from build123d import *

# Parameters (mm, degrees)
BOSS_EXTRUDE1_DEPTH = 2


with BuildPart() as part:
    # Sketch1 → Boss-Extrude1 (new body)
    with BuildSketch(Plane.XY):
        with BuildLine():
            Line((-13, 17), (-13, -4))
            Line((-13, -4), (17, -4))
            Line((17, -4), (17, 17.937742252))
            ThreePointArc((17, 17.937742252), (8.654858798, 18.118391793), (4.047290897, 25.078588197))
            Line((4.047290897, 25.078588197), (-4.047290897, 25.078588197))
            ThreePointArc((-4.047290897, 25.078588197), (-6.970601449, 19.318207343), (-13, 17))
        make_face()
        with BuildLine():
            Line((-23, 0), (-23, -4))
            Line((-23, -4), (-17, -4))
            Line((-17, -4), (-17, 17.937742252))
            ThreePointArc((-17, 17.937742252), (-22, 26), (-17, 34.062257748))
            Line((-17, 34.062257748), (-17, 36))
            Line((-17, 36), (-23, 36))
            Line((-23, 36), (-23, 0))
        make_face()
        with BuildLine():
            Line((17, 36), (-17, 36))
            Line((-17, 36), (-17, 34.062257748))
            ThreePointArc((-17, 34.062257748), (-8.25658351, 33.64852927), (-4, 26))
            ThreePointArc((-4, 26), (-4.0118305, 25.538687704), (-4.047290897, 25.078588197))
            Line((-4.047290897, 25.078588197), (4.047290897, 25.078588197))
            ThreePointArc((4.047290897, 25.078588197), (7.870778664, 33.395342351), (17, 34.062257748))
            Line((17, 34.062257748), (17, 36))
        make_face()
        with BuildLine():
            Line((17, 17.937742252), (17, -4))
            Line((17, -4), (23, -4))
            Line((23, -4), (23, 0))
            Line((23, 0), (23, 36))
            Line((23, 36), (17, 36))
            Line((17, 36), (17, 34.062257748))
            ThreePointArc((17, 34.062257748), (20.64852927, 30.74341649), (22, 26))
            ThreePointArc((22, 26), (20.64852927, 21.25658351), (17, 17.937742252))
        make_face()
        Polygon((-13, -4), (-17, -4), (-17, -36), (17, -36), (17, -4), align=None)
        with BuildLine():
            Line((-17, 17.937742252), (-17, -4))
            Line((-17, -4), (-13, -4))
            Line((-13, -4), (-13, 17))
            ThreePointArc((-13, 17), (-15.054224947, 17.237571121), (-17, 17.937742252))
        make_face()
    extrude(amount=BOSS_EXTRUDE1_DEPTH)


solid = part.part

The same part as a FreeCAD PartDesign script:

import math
import FreeCAD as App
import Part
import Sketcher
from FreeCAD import Vector
Q = App.Units.Quantity

doc = App.newDocument("Part")
params = doc.addObject("Spreadsheet::Sheet", "Params")
for row, (alias, value) in enumerate([
    ("sketch1_radius", "9 mm"),
    ("sketch1_width", "6 mm"),
    ("sketch1_width2", "34 mm"),
    ("sketch1_height", "32 mm"),
    ("sketch1_height2", "40 mm"),
    ("pad1_length", "2 mm"),
], start=1):
    params.set(f"A{row}", alias)
    params.set(f"B{row}", "=" + value)
    params.setAlias(f"B{row}", alias)

body = doc.addObject("PartDesign::Body", "Body")

# Sketch on XY plane
sketch1 = body.newObject("Sketcher::SketchObject", "Sketch")
sketch1.AttachmentSupport = (doc.getObject("XY_Plane"), [""])
sketch1.MapMode = "FlatFace"
sketch1.addGeometry([
    Part.LineSegment(Vector(-23, -4, 0), Vector(-17, -4, 0)),  # 0
    Part.LineSegment(Vector(-17, -4, 0), Vector(-17, -36, 0)),  # 1
    Part.LineSegment(Vector(-17, -36, 0), Vector(17, -36, 0)),  # 2
    Part.LineSegment(Vector(17, -36, 0), Vector(17, -4, 0)),  # 3
    Part.LineSegment(Vector(17, -4, 0), Vector(23, -4, 0)),  # 4
    Part.LineSegment(Vector(23, -4, 0), Vector(23, 36, 0)),  # 5
    Part.LineSegment(Vector(23, 36, 0), Vector(-23, 36, 0)),  # 6
    Part.LineSegment(Vector(-23, 36, 0), Vector(-23, -4, 0)),  # 7
    Part.ArcOfCircle(Part.Circle(Vector(-13, 26, 0), Vector(0, 0, 1), 9), math.radians(-90), math.radians(-6)),  # 8
    Part.ArcOfCircle(Part.Circle(Vector(-13, 26, 0), Vector(0, 0, 1), 9), math.radians(-116), math.radians(-90)),  # 9
    Part.ArcOfCircle(Part.Circle(Vector(-13, 26, 0), Vector(0, 0, 1), 9), math.radians(116), math.radians(244)),  # 10
    Part.ArcOfCircle(Part.Circle(Vector(-13, 26, 0), Vector(0, 0, 1), 9), math.radians(0), math.radians(116)),  # 11
    Part.ArcOfCircle(Part.Circle(Vector(-13, 26, 0), Vector(0, 0, 1), 9), math.radians(-5.88), math.radians(0)),  # 12
    Part.ArcOfCircle(Part.Circle(Vector(13, 26, 0), Vector(0, 0, 1), 9), math.radians(-174), math.radians(-64)),  # 13
    Part.ArcOfCircle(Part.Circle(Vector(13, 26, 0), Vector(0, 0, 1), 9), math.radians(64), math.radians(186)),  # 14
    Part.ArcOfCircle(Part.Circle(Vector(13, 26, 0), Vector(0, 0, 1), 9), math.radians(0), math.radians(64)),  # 15
    Part.ArcOfCircle(Part.Circle(Vector(13, 26, 0), Vector(0, 0, 1), 9), math.radians(-64), math.radians(0)),  # 16
], False)
sketch1.addConstraint([
    Sketcher.Constraint("Coincident", 0, 2, 1, 1),
    Sketcher.Constraint("Coincident", 1, 2, 2, 1),
    Sketcher.Constraint("Coincident", 2, 2, 3, 1),
    Sketcher.Constraint("Coincident", 3, 2, 4, 1),
    Sketcher.Constraint("Coincident", 4, 2, 5, 1),
    Sketcher.Constraint("Coincident", 5, 2, 6, 1),
    Sketcher.Constraint("Coincident", 6, 2, 7, 1),
    Sketcher.Constraint("Coincident", 7, 2, 0, 1),
    Sketcher.Constraint("Tangent", 8, 1, 9, 2),
    Sketcher.Constraint("Tangent", 9, 1, 10, 2),
    Sketcher.Constraint("Tangent", 10, 1, 11, 2),
    Sketcher.Constraint("Tangent", 11, 1, 12, 2),
    Sketcher.Constraint("Tangent", 12, 1, 8, 2),
    Sketcher.Constraint("Tangent", 13, 1, 14, 2),
    Sketcher.Constraint("Tangent", 14, 1, 15, 2),
    Sketcher.Constraint("Tangent", 15, 1, 16, 2),
    Sketcher.Constraint("Tangent", 16, 1, 13, 2),
    Sketcher.Constraint("Horizontal", 0),
    Sketcher.Constraint("Vertical", 1),
    Sketcher.Constraint("Horizontal", 2),
    Sketcher.Constraint("Vertical", 3),
    Sketcher.Constraint("Horizontal", 4),
    Sketcher.Constraint("Vertical", 5),
    Sketcher.Constraint("Horizontal", 6),
    Sketcher.Constraint("Vertical", 7),
    Sketcher.Constraint("Coincident", 10, 3, 8, 3),
    Sketcher.Constraint("Equal", 12, 13),
    Sketcher.Constraint("Equal", 13, 14),
    Sketcher.Constraint("Symmetric", 8, 3, 13, 3, -2),
    Sketcher.Constraint("Symmetric", 0, 2, 3, 2, -2),
    Sketcher.Constraint("Horizontal", 16, 3, 11, 1),
    Sketcher.Constraint("Horizontal", 12, 1, 13, 1),
    Sketcher.Constraint("Horizontal", 10, 1, 14, 1),
    Sketcher.Constraint("Horizontal", 11, 1, 15, 1),
    Sketcher.Constraint("Horizontal", 9, 1, 16, 1),
    Sketcher.Constraint("Vertical", 12, 3, 8, 1),
    Sketcher.Constraint("Vertical", 1, 2, 9, 1),
    Sketcher.Constraint("Vertical", 9, 1, 10, 1),
    Sketcher.Constraint("Equal", 0, 4),
    Sketcher.Constraint("Radius", 8, Q("9 mm")),
    Sketcher.Constraint("DistanceX", 0, 1, 0, 2, Q("6 mm")),
    Sketcher.Constraint("DistanceX", 2, 1, 2, 2, Q("34 mm")),
    Sketcher.Constraint("DistanceY", 1, 2, 1, 1, Q("32 mm")),
    Sketcher.Constraint("DistanceY", 5, 1, 5, 2, Q("40 mm")),
    Sketcher.Constraint("DistanceX", 8, 3, -1, 1, Q("13 mm")),
    Sketcher.Constraint("DistanceY", -1, 1, 8, 3, Q("26 mm")),
    Sketcher.Constraint("DistanceY", 0, 2, -1, 1, Q("4 mm")),
    Sketcher.Constraint("DistanceX", 12, 1, -1, 1, Q("4.047291 mm")),
])
sketch1.setExpression("Constraints[39]", "Params.sketch1_radius")
sketch1.setExpression("Constraints[40]", "Params.sketch1_width")
sketch1.setExpression("Constraints[41]", "Params.sketch1_width2")
sketch1.setExpression("Constraints[42]", "Params.sketch1_height")
sketch1.setExpression("Constraints[43]", "Params.sketch1_height2")
pad1 = body.newObject("PartDesign::Pad", "Pad")
pad1.Profile = sketch1
pad1.setExpression("Length", "Params.pad1_length")

doc.recompute()
